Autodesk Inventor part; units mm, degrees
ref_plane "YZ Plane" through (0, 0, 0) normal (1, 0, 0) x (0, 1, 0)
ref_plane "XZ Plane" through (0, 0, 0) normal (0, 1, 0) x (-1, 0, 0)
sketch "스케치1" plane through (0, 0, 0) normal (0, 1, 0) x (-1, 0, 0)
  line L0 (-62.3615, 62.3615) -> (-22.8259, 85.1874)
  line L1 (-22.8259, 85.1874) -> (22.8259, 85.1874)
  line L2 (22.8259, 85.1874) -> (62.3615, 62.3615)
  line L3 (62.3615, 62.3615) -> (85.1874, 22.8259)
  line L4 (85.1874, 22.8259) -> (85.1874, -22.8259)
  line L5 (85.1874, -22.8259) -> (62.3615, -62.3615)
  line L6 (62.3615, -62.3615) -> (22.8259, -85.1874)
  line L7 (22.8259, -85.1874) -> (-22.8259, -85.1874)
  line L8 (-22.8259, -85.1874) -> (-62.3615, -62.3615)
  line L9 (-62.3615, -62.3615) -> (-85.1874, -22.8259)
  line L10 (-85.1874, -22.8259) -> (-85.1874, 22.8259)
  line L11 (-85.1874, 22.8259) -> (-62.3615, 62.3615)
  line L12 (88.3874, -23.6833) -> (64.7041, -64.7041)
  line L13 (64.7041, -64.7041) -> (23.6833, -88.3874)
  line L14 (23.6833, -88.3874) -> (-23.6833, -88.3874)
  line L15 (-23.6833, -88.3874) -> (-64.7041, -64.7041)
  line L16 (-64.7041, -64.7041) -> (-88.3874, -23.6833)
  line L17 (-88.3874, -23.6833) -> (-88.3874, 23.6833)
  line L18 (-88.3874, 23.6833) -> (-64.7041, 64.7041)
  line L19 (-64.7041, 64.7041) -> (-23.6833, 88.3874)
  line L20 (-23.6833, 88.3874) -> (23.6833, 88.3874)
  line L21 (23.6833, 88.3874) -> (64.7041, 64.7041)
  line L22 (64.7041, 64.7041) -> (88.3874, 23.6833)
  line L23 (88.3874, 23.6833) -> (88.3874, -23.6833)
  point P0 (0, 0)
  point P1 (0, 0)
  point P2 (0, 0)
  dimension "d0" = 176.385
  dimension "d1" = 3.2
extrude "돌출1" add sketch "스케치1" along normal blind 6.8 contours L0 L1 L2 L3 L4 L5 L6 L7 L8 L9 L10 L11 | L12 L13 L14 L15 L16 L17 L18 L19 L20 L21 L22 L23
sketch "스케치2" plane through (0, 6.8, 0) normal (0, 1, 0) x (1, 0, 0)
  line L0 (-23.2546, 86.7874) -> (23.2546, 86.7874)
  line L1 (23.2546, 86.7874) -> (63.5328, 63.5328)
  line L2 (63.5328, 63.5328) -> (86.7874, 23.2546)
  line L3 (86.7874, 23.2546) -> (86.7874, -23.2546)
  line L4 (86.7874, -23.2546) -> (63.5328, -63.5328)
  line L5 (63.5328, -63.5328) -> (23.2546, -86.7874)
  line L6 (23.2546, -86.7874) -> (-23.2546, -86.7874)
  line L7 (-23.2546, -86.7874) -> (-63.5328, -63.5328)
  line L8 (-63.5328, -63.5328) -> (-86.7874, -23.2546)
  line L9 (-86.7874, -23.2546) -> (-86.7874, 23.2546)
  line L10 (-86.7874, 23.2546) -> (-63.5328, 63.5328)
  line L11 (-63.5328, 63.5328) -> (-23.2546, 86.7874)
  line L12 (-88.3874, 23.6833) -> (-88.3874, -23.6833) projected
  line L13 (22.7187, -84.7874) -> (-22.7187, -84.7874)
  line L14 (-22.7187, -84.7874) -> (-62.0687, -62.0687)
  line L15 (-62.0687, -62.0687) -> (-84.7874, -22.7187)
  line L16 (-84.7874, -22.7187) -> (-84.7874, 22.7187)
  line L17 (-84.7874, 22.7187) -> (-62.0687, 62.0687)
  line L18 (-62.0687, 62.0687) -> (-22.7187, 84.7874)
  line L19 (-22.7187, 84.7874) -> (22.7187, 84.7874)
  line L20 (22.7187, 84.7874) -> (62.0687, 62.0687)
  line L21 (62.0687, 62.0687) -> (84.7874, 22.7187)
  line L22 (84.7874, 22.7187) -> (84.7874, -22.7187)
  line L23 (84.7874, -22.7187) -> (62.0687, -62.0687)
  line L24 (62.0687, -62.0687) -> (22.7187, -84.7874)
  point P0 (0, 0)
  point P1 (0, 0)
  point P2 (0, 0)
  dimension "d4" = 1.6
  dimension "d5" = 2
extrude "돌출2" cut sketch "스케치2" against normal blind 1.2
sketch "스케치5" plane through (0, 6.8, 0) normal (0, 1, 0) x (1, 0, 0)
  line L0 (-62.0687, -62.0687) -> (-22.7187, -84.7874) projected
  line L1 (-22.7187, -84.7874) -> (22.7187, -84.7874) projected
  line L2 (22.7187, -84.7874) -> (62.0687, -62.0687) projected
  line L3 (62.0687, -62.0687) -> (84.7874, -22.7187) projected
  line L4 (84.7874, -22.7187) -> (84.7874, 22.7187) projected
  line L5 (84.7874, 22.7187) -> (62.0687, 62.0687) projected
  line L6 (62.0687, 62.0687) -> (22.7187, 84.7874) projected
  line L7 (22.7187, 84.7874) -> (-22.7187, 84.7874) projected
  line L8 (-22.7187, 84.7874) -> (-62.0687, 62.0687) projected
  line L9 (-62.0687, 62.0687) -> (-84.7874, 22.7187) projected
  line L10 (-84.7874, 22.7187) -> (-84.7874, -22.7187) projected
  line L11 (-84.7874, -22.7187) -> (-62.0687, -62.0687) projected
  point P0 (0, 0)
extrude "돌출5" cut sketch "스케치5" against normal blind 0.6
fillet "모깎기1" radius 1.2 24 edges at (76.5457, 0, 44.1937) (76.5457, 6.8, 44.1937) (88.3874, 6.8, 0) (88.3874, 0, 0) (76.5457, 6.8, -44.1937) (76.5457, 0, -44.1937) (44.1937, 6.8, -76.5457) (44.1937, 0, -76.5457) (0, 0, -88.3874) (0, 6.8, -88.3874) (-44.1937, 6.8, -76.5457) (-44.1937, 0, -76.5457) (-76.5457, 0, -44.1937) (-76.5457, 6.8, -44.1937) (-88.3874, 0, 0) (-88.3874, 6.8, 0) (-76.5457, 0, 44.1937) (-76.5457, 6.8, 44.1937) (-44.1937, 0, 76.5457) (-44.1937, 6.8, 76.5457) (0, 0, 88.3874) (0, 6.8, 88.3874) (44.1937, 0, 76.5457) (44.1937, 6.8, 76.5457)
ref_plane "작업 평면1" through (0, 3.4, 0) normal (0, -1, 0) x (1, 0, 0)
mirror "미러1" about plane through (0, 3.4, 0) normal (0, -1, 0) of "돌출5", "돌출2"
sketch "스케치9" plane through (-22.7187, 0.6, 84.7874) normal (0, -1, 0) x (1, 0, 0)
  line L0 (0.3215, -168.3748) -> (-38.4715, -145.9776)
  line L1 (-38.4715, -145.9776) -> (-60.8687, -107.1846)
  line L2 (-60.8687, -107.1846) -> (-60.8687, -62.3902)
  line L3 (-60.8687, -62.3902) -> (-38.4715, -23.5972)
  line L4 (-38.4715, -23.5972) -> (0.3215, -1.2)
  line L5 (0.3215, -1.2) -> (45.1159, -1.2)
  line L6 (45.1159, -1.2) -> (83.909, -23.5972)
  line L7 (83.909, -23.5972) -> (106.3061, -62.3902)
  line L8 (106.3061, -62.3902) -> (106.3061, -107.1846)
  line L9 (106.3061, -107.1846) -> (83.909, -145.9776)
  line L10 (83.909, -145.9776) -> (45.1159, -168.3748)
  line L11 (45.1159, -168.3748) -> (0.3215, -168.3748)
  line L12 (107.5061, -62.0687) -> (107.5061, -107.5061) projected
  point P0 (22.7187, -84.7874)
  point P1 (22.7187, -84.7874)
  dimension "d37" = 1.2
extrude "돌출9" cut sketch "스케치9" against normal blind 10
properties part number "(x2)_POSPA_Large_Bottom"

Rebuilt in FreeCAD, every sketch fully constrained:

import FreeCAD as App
import Part
import Sketcher
from FreeCAD import Vector
Q = App.Units.Quantity


def edges_at(feature, points):
    """Names of the edges that pass closest to the given points."""
    edges = feature.Shape.Edges
    near = lambda p: min(range(len(edges)), key=lambda i: edges[i].distToShape(Part.Vertex(*p))[0])
    return sorted({f"Edge{near(p) + 1}" for p in points})


def add_polygon(sketch, points):
    """Adds a closed chain of lines whose ends are joined by coincident constraints."""
    first, n = sketch.GeometryCount, len(points)
    for a, b in zip(points, points[1:] + points[:1]):
        sketch.addGeometry(Part.LineSegment(App.Vector(*a, 0), App.Vector(*b, 0)), False)
    for i in range(n):
        sketch.addConstraint(Sketcher.Constraint("Coincident", first + i, 2, first + (i + 1) % n, 1))

doc = App.newDocument("Part")
params = doc.addObject("Spreadsheet::Sheet", "Params")
for row, (alias, value) in enumerate([
    ("pad1_length", "6.8 mm"),
    ("pocket1_length", "1.2 mm"),
    ("pocket2_length", "0.6 mm"),
    ("fillet_radius", "1.2 mm"),
    ("pocket3_length", "10 mm"),
], start=1):
    params.set(f"A{row}", alias)
    params.set(f"B{row}", "=" + value)
    params.setAlias(f"B{row}", alias)

body = doc.addObject("PartDesign::Body", "Body")

sketch1 = body.newObject("Sketcher::SketchObject", "Sketch")
sketch1.AttachmentSupport = (doc.getObject("XZ_Plane"), [""])
sketch1.MapMode = "FlatFace"
add_polygon(sketch1, [(-65, -65), (-88, -24), (-88, 24), (-65, 65), (-24, 88), (24, 88), (65, 65), (88, 24), (88, -24), (65, -65), (24, -88), (-24, -88)])
sketch1.addConstraint([
    Sketcher.Constraint("Vertical", 1),
    Sketcher.Constraint("Horizontal", 4),
    Sketcher.Constraint("Vertical", 7),
    Sketcher.Constraint("Horizontal", 10),
    Sketcher.Constraint("Symmetric", 0, 2, 6, 2, -1, 1),
    Sketcher.Constraint("Symmetric", 2, 2, 8, 2, -1, 1),
    Sketcher.Constraint("Symmetric", 3, 2, 9, 2, -1, 1),
    Sketcher.Constraint("Symmetric", 5, 2, 11, 2, -1, 1),
    Sketcher.Constraint("Symmetric", 2, 2, 5, 2, -2),
    Sketcher.Constraint("Perpendicular", 0, 3),
    Sketcher.Constraint("Perpendicular", 2, 5),
    Sketcher.Constraint("Perpendicular", 5, 8),
    Sketcher.Constraint("Perpendicular", 8, 11),
    Sketcher.Constraint("Horizontal", 1, 2, 6, 2),
    Sketcher.Constraint("Equal", 10, 1),
    Sketcher.Constraint("Equal", 2, 3),
    Sketcher.Constraint("Angle", 0, Q("120 deg")),
    Sketcher.Constraint("DistanceX", 4, 1, 4, 2, 47.3666),
    Sketcher.Constraint("DistanceX", 2, 2, -1, 1, 64.704),
])
pad1 = body.newObject("PartDesign::Pad", "Pad")
pad1.Profile = sketch1
pad1.setExpression("Length", "Params.pad1_length")
pad1.Reversed = True

sketch2 = body.newObject("Sketcher::SketchObject", "Sketch001")
sketch2.AttachmentSupport = (doc.getObject("XZ_Plane"), [""])
sketch2.MapMode = "FlatFace"
sketch2.AttachmentOffset = App.Placement(Vector(0, 0, -6.8), App.Rotation())
add_polygon(sketch2, [(23, -87), (-23, -87), (-64, -64), (-87, -23), (-87, 23), (-64, 64), (-23, 87), (23, 87), (64, 64), (87, 23), (87, -23), (64, -64)])
add_polygon(sketch2, [(62, 62), (23, 85), (-23, 85), (-62, 62), (-85, 23), (-85, -23), (-62, -62), (-23, -85), (23, -85), (62, -62), (85, -23), (85, 23)])
sketch2.addConstraint([
    Sketcher.Constraint("Horizontal", 0),
    Sketcher.Constraint("Vertical", 3),
    Sketcher.Constraint("Horizontal", 6),
    Sketcher.Constraint("Vertical", 9),
    Sketcher.Constraint("Horizontal", 13),
    Sketcher.Constraint("Vertical", 16),
    Sketcher.Constraint("Horizontal", 19),
    Sketcher.Constraint("Vertical", 22),
    Sketcher.Constraint("Symmetric", 0, 2, 6, 2, -1, 1),
    Sketcher.Constraint("Symmetric", 1, 2, 7, 2, -1, 1),
    Sketcher.Constraint("Symmetric", 2, 2, 8, 2, -1, 1),
    Sketcher.Constraint("Symmetric", 4, 2, 10, 2, -1, 1),
    Sketcher.Constraint("Symmetric", 12, 2, 18, 2, -1, 1),
    Sketcher.Constraint("Symmetric", 14, 2, 20, 2, -1, 1),
    Sketcher.Constraint("Symmetric", 15, 2, 21, 2, -1, 1),
    Sketcher.Constraint("Symmetric", 17, 2, 23, 2, -1, 1),
    Sketcher.Constraint("Symmetric", 4, 2, 7, 2, -2),
    Sketcher.Constraint("Symmetric", 17, 2, 20, 2, -2),
    Sketcher.Constraint("Perpendicular", 1, 4),
    Sketcher.Constraint("Perpendicular", 2, 5),
    Sketcher.Constraint("Perpendicular", 7, 10),
    Sketcher.Constraint("Perpendicular", 8, 11),
    Sketcher.Constraint("Perpendicular", 10, 12),
    Sketcher.Constraint("Parallel", 11, 14),
    Sketcher.Constraint("Perpendicular", 12, 15),
    Sketcher.Constraint("Perpendicular", 14, 17),
    Sketcher.Constraint("Perpendicular", 17, 20),
    Sketcher.Constraint("Perpendicular", 20, 23),
    Sketcher.Constraint("Horizontal", 3, 2, 8, 2),
    Sketcher.Constraint("Equal", 6, 3),
    Sketcher.Constraint("Equal", 19, 16),
    Sketcher.Constraint("Equal", 1, 2),
    Sketcher.Constraint("Equal", 14, 15),
    Sketcher.Constraint("DistanceY", 12, 2, 6, 2, 2.0),
    Sketcher.Constraint("Angle", 1, Q("150 deg")),
    Sketcher.Constraint("DistanceX", 14, 2, 13, 2, 39.35),
    Sketcher.Constraint("DistanceX", 0, 2, 0, 1, 46.5092),
    Sketcher.Constraint("DistanceX", 13, 2, 13, 1, 45.4374),
])
pocket1 = body.newObject("PartDesign::Pocket", "Pocket")
pocket1.Profile = sketch2
pocket1.setExpression("Length", "Params.pocket1_length")
pocket1.Reversed = True

sketch3 = body.newObject("Sketcher::SketchObject", "Sketch002")
sketch3.AttachmentSupport = (doc.getObject("XZ_Plane"), [""])
sketch3.MapMode = "FlatFace"
sketch3.AttachmentOffset = App.Placement(Vector(0, 0, -6.8), App.Rotation())
add_polygon(sketch3, [(-85, 23), (-62, 62), (-23, 85), (23, 85), (62, 62), (85, 23), (85, -23), (62, -62), (23, -85), (-23, -85), (-62, -62), (-85, -23)])
sketch3.addConstraint([
    Sketcher.Constraint("Horizontal", 2),
    Sketcher.Constraint("Vertical", 5),
    Sketcher.Constraint("Horizontal", 8),
    Sketcher.Constraint("Vertical", 11),
    Sketcher.Constraint("Symmetric", 0, 2, 6, 2, -1, 1),
    Sketcher.Constraint("Symmetric", 1, 2, 7, 2, -1, 1),
    Sketcher.Constraint("Symmetric", 3, 2, 9, 2, -1, 1),
    Sketcher.Constraint("Symmetric", 4, 2, 10, 2, -1, 1),
    Sketcher.Constraint("Symmetric", 0, 2, 3, 2, -2),
    Sketcher.Constraint("Perpendicular", 0, 3),
    Sketcher.Constraint("Perpendicular", 1, 4),
    Sketcher.Constraint("Perpendicular", 3, 6),
    Sketcher.Constraint("Perpendicular", 6, 9),
    Sketcher.Constraint("Horizontal", 5, 2, 10, 2),
    Sketcher.Constraint("Equal", 8, 5),
    Sketcher.Constraint("Equal", 0, 1),
    Sketcher.Constraint("Angle", 0, Q("60 deg")),
    Sketcher.Constraint("DistanceX", 0, 2, 1, 2, 39.35),
    Sketcher.Constraint("DistanceX", 2, 1, 2, 2, 45.4374),
])
pocket2 = body.newObject("PartDesign::Pocket", "Pocket001")
pocket2.Profile = sketch3
pocket2.setExpression("Length", "Params.pocket2_length")
pocket2.Reversed = True
doc.recompute()

fillet = body.newObject("PartDesign::Fillet", "Fillet")
fillet.Base = (pocket2, edges_at(pocket2, [
    (76.546, 0, 44.194),
    (76.546, 6.8, 44.194),
    (88.387, 6.8, 0),
    (88.387, 0, 0),
    (76.546, 6.8, -44.194),
    (76.546, 0, -44.194),
    (44.194, 6.8, -76.546),
    (44.194, 0, -76.546),
    (0, 0, -88.387),
    (0, 6.8, -88.387),
    (-44.194, 6.8, -76.546),
    (-44.194, 0, -76.546),
    (-76.546, 0, -44.194),
    (-76.546, 6.8, -44.194),
    (-88.387, 0, 0),
    (-88.387, 6.8, 0),
    (-76.546, 0, 44.194),
    (-76.546, 6.8, 44.194),
    (-44.194, 0, 76.546),
    (-44.194, 6.8, 76.546),
    (0, 0, 88.387),
    (0, 6.8, 88.387),
    (44.194, 0, 76.546),
    (44.194, 6.8, 76.546),
]))
fillet.setExpression("Radius", "Params.fillet_radius")
doc.recompute()

datumplane = body.newObject("PartDesign::Plane", "DatumPlane")
datumplane.AttachmentSupport = (doc.getObject("XZ_Plane"), [""])
datumplane.MapMode = "FlatFace"
datumplane.AttachmentOffset = App.Placement(Vector(0, 0, -3.4), App.Rotation())
mirrored = body.newObject("PartDesign::Mirrored", "Mirrored")
mirrored.Originals = [pocket2, pocket1]
mirrored.MirrorPlane = (datumplane, [""])
body.Tip = mirrored

sketch4 = body.newObject("Sketcher::SketchObject", "Sketch003")
sketch4.AttachmentSupport = (doc.getObject("XZ_Plane"), [""])
sketch4.MapMode = "FlatFace"
sketch4.AttachmentOffset = App.Placement(Vector(0, 0, -0.6), App.Rotation())
add_polygon(sketch4, [(-61, -61), (-22, -84), (22, -84), (61, -61), (84, -22), (84, 22), (61, 61), (22, 84), (-22, 84), (-61, 61), (-84, 22), (-84, -22)])
sketch4.addConstraint([
    Sketcher.Constraint("Horizontal", 1),
    Sketcher.Constraint("Vertical", 4),
    Sketcher.Constraint("Horizontal", 7),
    Sketcher.Constraint("Vertical", 10),
    Sketcher.Constraint("Symmetric", 0, 2, 6, 2, -1, 1),
    Sketcher.Constraint("Symmetric", 2, 2, 8, 2, -1, 1),
    Sketcher.Constraint("Symmetric", 3, 2, 9, 2, -1, 1),
    Sketcher.Constraint("Symmetric", 5, 2, 11, 2, -1, 1),
    Sketcher.Constraint("Symmetric", 5, 2, 8, 2, -2),
    Sketcher.Constraint("Perpendicular", 0, 3),
    Sketcher.Constraint("Perpendicular", 2, 5),
    Sketcher.Constraint("Perpendicular", 5, 8),
    Sketcher.Constraint("Perpendicular", 8, 11),
    Sketcher.Constraint("Horizontal", 4, 2, 9, 2),
    Sketcher.Constraint("Equal", 7, 4),
    Sketcher.Constraint("Equal", 2, 3),
    Sketcher.Constraint("Angle", 0, Q("-30 deg")),
    Sketcher.Constraint("DistanceX", 1, 1, 1, 2, 44.7944),
    Sketcher.Constraint("DistanceX", 1, 2, 2, 2, 38.793),
])
pocket3 = body.newObject("PartDesign::Pocket", "Pocket002")
pocket3.Profile = sketch4
pocket3.setExpression("Length", "Params.pocket3_length")

doc.recompute()
